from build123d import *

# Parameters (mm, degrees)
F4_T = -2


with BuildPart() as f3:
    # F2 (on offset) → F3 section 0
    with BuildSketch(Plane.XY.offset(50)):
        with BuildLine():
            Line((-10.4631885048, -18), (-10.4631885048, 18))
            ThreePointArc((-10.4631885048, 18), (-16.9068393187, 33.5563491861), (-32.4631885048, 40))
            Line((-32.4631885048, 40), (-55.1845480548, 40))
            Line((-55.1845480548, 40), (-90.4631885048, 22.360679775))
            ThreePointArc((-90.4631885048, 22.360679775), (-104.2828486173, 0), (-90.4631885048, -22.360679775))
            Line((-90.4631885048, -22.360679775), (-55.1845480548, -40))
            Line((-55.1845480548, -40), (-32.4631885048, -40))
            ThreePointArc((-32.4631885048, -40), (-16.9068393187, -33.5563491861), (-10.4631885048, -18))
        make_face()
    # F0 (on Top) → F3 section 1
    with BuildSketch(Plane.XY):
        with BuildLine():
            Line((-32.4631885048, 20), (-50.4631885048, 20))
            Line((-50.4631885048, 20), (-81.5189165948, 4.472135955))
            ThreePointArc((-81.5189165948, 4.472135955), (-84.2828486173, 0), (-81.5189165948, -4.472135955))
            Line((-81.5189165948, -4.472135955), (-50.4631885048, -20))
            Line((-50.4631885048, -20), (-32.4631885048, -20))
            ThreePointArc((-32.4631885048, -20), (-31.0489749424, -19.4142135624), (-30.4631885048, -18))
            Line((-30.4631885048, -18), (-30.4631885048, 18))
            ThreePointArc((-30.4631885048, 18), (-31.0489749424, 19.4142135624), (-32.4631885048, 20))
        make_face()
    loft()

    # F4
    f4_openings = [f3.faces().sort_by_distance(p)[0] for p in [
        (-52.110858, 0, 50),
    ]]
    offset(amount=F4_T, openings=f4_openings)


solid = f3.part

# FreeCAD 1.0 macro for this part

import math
import FreeCAD as App
import Part
import Sketcher

V = App.Vector


def faces_at(feature, points):
    """Names of the faces that lie closest to the given points."""
    faces = feature.Shape.Faces
    near = lambda p: min(range(len(faces)), key=lambda i: faces[i].distToShape(Part.Vertex(*p))[0])
    return sorted({f"Face{near(p) + 1}" for p in points})

doc = App.newDocument("Part")
params = doc.addObject("Spreadsheet::Sheet", "Params")
for row, (alias, value) in enumerate([
    ("sketch1_radius", "22 mm"),
    ("sketch1_radius2", "25 mm"),
    ("sketch1_height", "36 mm"),
    ("sketch2_radius", "5 mm"),
    ("sketch2_radius2", "2 mm"),
    ("sketch2_width", "18 mm"),
    ("sketch2_height", "36 mm"),
    ("thickness_wall", "2 mm"),
], start=1):
    params.set(f"A{row}", alias)
    params.set(f"B{row}", "=" + value)
    params.setAlias(f"B{row}", alias)

body = doc.addObject("PartDesign::Body", "Body")

# Sketch on XY plane
sketch1 = body.newObject("Sketcher::SketchObject", "Sketch")
sketch1.AttachmentSupport = (doc.getObject("XY_Plane"), [""])
sketch1.MapMode = "FlatFace"
sketch1.AttachmentOffset = App.Placement(V(0, 0, 50), App.Rotation())
sketch1.addGeometry([
    Part.LineSegment(V(-10, -18, 0), V(-10, 18, 0)),  # 0
    Part.ArcOfCircle(Part.Circle(V(-32, 18, 0), V(0, 0, 1), 22), math.radians(0), math.radians(90)),  # 1
    Part.LineSegment(V(-32, 40, 0), V(-55, 40, 0)),  # 2
    Part.LineSegment(V(-55, 40, 0), V(-90, 22, 0)),  # 3
    Part.ArcOfCircle(Part.Circle(V(-79, 0, 0), V(0, 0, 1), 25), math.radians(117), math.radians(243)),  # 4
    Part.LineSegment(V(-90, -22, 0), V(-55, -40, 0)),  # 5
    Part.LineSegment(V(-55, -40, 0), V(-32, -40, 0)),  # 6
    Part.ArcOfCircle(Part.Circle(V(-32, -18, 0), V(0, 0, 1), 22), math.radians(-90), math.radians(0)),  # 7
], False)
sketch1.addConstraint([
    Sketcher.Constraint("Tangent", 0, 2, 1, 1),
    Sketcher.Constraint("Tangent", 1, 2, 2, 1),
    Sketcher.Constraint("Coincident", 2, 2, 3, 1),
    Sketcher.Constraint("Tangent", 3, 2, 4, 1),
    Sketcher.Constraint("Tangent", 4, 2, 5, 1),
    Sketcher.Constraint("Coincident", 5, 2, 6, 1),
    Sketcher.Constraint("Tangent", 6, 2, 7, 1),
    Sketcher.Constraint("Tangent", 7, 2, 0, 1),
    Sketcher.Constraint("Vertical", 0),
    Sketcher.Constraint("Horizontal", 2),
    Sketcher.Constraint("Horizontal", 6),
    Sketcher.Constraint("Equal", 1, 7),
    Sketcher.Constraint("Symmetric", 3, 2, 4, 2, -1),
    Sketcher.Constraint("Vertical", 2, 2, 5, 2),
    Sketcher.Constraint("Radius", 1, 22.0),
    Sketcher.Constraint("Radius", 4, 25.0),
    Sketcher.Constraint("DistanceY", 0, 1, 0, 2, 36.0),
    Sketcher.Constraint("DistanceX", 3, 2, 1, 3, 58.0),
    Sketcher.Constraint("DistanceX", 2, 2, 2, 1, 22.72136),
    Sketcher.Constraint("DistanceX", 1, 3, -1, 1, 32.463189),
])
sketch1.setExpression("Constraints[14]", "Params.sketch1_radius")
sketch1.setExpression("Constraints[15]", "Params.sketch1_radius2")
sketch1.setExpression("Constraints[16]", "Params.sketch1_height")

# Sketch on XY plane
sketch2 = body.newObject("Sketcher::SketchObject", "Sketch001")
sketch2.AttachmentSupport = (doc.getObject("XY_Plane"), [""])
sketch2.MapMode = "FlatFace"
sketch2.addGeometry([
    Part.LineSegment(V(-32.5, 20, 0), V(-50.5, 20, 0)),  # 0
    Part.LineSegment(V(-50.5, 20, 0), V(-81.5, 4.5, 0)),  # 1
    Part.ArcOfCircle(Part.Circle(V(-79.3, 0, 0), V(0, 0, 1), 5), math.radians(117), math.radians(243)),  # 2
    Part.LineSegment(V(-81.5, -4.5, 0), V(-50.5, -20, 0)),  # 3
    Part.LineSegment(V(-50.5, -20, 0), V(-32.5, -20, 0)),  # 4
    Part.ArcOfCircle(Part.Circle(V(-32.5, -18, 0), V(0, 0, 1), 2), math.radians(-90), math.radians(0)),  # 5
    Part.LineSegment(V(-30.5, -18, 0), V(-30.5, 18, 0)),  # 6
    Part.ArcOfCircle(Part.Circle(V(-32.5, 18, 0), V(0, 0, 1), 2), math.radians(0), math.radians(90)),  # 7
], False)
sketch2.addConstraint([
    Sketcher.Constraint("Coincident", 0, 2, 1, 1),
    Sketcher.Constraint("Tangent", 1, 2, 2, 1),
    Sketcher.Constraint("Tangent", 2, 2, 3, 1),
    Sketcher.Constraint("Coincident", 3, 2, 4, 1),
    Sketcher.Constraint("Tangent", 4, 2, 5, 1),
    Sketcher.Constraint("Tangent", 5, 2, 6, 1),
    Sketcher.Constraint("Tangent", 6, 2, 7, 1),
    Sketcher.Constraint("Tangent", 7, 2, 0, 1),
    Sketcher.Constraint("Horizontal", 0),
    Sketcher.Constraint("Horizontal", 4),
    Sketcher.Constraint("Vertical", 6),
    Sketcher.Constraint("Equal", 5, 7),
    Sketcher.Constraint("Symmetric", 1, 2, 2, 2, -1),
    Sketcher.Constraint("Vertical", 0, 2, 3, 2),
    Sketcher.Constraint("Radius", 2, 5.0),
    Sketcher.Constraint("Radius", 5, 2.0),
    Sketcher.Constraint("DistanceX", 0, 2, 0, 1, 18.0),
    Sketcher.Constraint("DistanceY", 6, 1, 6, 2, 36.0),
    Sketcher.Constraint("Distance", 1, 34.72136),
    Sketcher.Constraint("DistanceX", 2, 3, -1, 1, 79.282849),
])
sketch2.setExpression("Constraints[14]", "Params.sketch2_radius")
sketch2.setExpression("Constraints[15]", "Params.sketch2_radius2")
sketch2.setExpression("Constraints[16]", "Params.sketch2_width")
sketch2.setExpression("Constraints[17]", "Params.sketch2_height")

additiveloft = body.newObject("PartDesign::AdditiveLoft", "AdditiveLoft")
additiveloft.Profile = sketch1
additiveloft.Sections = [sketch2]
doc.recompute()

thickness = body.newObject("PartDesign::Thickness", "Thickness")
thickness.Base = (additiveloft, faces_at(additiveloft, [(-57.373, 0, 50)]))
thickness.setExpression("Value", "Params.thickness_wall")
thickness.Reversed = True
thickness.Join = "Arc"

doc.recompute()
